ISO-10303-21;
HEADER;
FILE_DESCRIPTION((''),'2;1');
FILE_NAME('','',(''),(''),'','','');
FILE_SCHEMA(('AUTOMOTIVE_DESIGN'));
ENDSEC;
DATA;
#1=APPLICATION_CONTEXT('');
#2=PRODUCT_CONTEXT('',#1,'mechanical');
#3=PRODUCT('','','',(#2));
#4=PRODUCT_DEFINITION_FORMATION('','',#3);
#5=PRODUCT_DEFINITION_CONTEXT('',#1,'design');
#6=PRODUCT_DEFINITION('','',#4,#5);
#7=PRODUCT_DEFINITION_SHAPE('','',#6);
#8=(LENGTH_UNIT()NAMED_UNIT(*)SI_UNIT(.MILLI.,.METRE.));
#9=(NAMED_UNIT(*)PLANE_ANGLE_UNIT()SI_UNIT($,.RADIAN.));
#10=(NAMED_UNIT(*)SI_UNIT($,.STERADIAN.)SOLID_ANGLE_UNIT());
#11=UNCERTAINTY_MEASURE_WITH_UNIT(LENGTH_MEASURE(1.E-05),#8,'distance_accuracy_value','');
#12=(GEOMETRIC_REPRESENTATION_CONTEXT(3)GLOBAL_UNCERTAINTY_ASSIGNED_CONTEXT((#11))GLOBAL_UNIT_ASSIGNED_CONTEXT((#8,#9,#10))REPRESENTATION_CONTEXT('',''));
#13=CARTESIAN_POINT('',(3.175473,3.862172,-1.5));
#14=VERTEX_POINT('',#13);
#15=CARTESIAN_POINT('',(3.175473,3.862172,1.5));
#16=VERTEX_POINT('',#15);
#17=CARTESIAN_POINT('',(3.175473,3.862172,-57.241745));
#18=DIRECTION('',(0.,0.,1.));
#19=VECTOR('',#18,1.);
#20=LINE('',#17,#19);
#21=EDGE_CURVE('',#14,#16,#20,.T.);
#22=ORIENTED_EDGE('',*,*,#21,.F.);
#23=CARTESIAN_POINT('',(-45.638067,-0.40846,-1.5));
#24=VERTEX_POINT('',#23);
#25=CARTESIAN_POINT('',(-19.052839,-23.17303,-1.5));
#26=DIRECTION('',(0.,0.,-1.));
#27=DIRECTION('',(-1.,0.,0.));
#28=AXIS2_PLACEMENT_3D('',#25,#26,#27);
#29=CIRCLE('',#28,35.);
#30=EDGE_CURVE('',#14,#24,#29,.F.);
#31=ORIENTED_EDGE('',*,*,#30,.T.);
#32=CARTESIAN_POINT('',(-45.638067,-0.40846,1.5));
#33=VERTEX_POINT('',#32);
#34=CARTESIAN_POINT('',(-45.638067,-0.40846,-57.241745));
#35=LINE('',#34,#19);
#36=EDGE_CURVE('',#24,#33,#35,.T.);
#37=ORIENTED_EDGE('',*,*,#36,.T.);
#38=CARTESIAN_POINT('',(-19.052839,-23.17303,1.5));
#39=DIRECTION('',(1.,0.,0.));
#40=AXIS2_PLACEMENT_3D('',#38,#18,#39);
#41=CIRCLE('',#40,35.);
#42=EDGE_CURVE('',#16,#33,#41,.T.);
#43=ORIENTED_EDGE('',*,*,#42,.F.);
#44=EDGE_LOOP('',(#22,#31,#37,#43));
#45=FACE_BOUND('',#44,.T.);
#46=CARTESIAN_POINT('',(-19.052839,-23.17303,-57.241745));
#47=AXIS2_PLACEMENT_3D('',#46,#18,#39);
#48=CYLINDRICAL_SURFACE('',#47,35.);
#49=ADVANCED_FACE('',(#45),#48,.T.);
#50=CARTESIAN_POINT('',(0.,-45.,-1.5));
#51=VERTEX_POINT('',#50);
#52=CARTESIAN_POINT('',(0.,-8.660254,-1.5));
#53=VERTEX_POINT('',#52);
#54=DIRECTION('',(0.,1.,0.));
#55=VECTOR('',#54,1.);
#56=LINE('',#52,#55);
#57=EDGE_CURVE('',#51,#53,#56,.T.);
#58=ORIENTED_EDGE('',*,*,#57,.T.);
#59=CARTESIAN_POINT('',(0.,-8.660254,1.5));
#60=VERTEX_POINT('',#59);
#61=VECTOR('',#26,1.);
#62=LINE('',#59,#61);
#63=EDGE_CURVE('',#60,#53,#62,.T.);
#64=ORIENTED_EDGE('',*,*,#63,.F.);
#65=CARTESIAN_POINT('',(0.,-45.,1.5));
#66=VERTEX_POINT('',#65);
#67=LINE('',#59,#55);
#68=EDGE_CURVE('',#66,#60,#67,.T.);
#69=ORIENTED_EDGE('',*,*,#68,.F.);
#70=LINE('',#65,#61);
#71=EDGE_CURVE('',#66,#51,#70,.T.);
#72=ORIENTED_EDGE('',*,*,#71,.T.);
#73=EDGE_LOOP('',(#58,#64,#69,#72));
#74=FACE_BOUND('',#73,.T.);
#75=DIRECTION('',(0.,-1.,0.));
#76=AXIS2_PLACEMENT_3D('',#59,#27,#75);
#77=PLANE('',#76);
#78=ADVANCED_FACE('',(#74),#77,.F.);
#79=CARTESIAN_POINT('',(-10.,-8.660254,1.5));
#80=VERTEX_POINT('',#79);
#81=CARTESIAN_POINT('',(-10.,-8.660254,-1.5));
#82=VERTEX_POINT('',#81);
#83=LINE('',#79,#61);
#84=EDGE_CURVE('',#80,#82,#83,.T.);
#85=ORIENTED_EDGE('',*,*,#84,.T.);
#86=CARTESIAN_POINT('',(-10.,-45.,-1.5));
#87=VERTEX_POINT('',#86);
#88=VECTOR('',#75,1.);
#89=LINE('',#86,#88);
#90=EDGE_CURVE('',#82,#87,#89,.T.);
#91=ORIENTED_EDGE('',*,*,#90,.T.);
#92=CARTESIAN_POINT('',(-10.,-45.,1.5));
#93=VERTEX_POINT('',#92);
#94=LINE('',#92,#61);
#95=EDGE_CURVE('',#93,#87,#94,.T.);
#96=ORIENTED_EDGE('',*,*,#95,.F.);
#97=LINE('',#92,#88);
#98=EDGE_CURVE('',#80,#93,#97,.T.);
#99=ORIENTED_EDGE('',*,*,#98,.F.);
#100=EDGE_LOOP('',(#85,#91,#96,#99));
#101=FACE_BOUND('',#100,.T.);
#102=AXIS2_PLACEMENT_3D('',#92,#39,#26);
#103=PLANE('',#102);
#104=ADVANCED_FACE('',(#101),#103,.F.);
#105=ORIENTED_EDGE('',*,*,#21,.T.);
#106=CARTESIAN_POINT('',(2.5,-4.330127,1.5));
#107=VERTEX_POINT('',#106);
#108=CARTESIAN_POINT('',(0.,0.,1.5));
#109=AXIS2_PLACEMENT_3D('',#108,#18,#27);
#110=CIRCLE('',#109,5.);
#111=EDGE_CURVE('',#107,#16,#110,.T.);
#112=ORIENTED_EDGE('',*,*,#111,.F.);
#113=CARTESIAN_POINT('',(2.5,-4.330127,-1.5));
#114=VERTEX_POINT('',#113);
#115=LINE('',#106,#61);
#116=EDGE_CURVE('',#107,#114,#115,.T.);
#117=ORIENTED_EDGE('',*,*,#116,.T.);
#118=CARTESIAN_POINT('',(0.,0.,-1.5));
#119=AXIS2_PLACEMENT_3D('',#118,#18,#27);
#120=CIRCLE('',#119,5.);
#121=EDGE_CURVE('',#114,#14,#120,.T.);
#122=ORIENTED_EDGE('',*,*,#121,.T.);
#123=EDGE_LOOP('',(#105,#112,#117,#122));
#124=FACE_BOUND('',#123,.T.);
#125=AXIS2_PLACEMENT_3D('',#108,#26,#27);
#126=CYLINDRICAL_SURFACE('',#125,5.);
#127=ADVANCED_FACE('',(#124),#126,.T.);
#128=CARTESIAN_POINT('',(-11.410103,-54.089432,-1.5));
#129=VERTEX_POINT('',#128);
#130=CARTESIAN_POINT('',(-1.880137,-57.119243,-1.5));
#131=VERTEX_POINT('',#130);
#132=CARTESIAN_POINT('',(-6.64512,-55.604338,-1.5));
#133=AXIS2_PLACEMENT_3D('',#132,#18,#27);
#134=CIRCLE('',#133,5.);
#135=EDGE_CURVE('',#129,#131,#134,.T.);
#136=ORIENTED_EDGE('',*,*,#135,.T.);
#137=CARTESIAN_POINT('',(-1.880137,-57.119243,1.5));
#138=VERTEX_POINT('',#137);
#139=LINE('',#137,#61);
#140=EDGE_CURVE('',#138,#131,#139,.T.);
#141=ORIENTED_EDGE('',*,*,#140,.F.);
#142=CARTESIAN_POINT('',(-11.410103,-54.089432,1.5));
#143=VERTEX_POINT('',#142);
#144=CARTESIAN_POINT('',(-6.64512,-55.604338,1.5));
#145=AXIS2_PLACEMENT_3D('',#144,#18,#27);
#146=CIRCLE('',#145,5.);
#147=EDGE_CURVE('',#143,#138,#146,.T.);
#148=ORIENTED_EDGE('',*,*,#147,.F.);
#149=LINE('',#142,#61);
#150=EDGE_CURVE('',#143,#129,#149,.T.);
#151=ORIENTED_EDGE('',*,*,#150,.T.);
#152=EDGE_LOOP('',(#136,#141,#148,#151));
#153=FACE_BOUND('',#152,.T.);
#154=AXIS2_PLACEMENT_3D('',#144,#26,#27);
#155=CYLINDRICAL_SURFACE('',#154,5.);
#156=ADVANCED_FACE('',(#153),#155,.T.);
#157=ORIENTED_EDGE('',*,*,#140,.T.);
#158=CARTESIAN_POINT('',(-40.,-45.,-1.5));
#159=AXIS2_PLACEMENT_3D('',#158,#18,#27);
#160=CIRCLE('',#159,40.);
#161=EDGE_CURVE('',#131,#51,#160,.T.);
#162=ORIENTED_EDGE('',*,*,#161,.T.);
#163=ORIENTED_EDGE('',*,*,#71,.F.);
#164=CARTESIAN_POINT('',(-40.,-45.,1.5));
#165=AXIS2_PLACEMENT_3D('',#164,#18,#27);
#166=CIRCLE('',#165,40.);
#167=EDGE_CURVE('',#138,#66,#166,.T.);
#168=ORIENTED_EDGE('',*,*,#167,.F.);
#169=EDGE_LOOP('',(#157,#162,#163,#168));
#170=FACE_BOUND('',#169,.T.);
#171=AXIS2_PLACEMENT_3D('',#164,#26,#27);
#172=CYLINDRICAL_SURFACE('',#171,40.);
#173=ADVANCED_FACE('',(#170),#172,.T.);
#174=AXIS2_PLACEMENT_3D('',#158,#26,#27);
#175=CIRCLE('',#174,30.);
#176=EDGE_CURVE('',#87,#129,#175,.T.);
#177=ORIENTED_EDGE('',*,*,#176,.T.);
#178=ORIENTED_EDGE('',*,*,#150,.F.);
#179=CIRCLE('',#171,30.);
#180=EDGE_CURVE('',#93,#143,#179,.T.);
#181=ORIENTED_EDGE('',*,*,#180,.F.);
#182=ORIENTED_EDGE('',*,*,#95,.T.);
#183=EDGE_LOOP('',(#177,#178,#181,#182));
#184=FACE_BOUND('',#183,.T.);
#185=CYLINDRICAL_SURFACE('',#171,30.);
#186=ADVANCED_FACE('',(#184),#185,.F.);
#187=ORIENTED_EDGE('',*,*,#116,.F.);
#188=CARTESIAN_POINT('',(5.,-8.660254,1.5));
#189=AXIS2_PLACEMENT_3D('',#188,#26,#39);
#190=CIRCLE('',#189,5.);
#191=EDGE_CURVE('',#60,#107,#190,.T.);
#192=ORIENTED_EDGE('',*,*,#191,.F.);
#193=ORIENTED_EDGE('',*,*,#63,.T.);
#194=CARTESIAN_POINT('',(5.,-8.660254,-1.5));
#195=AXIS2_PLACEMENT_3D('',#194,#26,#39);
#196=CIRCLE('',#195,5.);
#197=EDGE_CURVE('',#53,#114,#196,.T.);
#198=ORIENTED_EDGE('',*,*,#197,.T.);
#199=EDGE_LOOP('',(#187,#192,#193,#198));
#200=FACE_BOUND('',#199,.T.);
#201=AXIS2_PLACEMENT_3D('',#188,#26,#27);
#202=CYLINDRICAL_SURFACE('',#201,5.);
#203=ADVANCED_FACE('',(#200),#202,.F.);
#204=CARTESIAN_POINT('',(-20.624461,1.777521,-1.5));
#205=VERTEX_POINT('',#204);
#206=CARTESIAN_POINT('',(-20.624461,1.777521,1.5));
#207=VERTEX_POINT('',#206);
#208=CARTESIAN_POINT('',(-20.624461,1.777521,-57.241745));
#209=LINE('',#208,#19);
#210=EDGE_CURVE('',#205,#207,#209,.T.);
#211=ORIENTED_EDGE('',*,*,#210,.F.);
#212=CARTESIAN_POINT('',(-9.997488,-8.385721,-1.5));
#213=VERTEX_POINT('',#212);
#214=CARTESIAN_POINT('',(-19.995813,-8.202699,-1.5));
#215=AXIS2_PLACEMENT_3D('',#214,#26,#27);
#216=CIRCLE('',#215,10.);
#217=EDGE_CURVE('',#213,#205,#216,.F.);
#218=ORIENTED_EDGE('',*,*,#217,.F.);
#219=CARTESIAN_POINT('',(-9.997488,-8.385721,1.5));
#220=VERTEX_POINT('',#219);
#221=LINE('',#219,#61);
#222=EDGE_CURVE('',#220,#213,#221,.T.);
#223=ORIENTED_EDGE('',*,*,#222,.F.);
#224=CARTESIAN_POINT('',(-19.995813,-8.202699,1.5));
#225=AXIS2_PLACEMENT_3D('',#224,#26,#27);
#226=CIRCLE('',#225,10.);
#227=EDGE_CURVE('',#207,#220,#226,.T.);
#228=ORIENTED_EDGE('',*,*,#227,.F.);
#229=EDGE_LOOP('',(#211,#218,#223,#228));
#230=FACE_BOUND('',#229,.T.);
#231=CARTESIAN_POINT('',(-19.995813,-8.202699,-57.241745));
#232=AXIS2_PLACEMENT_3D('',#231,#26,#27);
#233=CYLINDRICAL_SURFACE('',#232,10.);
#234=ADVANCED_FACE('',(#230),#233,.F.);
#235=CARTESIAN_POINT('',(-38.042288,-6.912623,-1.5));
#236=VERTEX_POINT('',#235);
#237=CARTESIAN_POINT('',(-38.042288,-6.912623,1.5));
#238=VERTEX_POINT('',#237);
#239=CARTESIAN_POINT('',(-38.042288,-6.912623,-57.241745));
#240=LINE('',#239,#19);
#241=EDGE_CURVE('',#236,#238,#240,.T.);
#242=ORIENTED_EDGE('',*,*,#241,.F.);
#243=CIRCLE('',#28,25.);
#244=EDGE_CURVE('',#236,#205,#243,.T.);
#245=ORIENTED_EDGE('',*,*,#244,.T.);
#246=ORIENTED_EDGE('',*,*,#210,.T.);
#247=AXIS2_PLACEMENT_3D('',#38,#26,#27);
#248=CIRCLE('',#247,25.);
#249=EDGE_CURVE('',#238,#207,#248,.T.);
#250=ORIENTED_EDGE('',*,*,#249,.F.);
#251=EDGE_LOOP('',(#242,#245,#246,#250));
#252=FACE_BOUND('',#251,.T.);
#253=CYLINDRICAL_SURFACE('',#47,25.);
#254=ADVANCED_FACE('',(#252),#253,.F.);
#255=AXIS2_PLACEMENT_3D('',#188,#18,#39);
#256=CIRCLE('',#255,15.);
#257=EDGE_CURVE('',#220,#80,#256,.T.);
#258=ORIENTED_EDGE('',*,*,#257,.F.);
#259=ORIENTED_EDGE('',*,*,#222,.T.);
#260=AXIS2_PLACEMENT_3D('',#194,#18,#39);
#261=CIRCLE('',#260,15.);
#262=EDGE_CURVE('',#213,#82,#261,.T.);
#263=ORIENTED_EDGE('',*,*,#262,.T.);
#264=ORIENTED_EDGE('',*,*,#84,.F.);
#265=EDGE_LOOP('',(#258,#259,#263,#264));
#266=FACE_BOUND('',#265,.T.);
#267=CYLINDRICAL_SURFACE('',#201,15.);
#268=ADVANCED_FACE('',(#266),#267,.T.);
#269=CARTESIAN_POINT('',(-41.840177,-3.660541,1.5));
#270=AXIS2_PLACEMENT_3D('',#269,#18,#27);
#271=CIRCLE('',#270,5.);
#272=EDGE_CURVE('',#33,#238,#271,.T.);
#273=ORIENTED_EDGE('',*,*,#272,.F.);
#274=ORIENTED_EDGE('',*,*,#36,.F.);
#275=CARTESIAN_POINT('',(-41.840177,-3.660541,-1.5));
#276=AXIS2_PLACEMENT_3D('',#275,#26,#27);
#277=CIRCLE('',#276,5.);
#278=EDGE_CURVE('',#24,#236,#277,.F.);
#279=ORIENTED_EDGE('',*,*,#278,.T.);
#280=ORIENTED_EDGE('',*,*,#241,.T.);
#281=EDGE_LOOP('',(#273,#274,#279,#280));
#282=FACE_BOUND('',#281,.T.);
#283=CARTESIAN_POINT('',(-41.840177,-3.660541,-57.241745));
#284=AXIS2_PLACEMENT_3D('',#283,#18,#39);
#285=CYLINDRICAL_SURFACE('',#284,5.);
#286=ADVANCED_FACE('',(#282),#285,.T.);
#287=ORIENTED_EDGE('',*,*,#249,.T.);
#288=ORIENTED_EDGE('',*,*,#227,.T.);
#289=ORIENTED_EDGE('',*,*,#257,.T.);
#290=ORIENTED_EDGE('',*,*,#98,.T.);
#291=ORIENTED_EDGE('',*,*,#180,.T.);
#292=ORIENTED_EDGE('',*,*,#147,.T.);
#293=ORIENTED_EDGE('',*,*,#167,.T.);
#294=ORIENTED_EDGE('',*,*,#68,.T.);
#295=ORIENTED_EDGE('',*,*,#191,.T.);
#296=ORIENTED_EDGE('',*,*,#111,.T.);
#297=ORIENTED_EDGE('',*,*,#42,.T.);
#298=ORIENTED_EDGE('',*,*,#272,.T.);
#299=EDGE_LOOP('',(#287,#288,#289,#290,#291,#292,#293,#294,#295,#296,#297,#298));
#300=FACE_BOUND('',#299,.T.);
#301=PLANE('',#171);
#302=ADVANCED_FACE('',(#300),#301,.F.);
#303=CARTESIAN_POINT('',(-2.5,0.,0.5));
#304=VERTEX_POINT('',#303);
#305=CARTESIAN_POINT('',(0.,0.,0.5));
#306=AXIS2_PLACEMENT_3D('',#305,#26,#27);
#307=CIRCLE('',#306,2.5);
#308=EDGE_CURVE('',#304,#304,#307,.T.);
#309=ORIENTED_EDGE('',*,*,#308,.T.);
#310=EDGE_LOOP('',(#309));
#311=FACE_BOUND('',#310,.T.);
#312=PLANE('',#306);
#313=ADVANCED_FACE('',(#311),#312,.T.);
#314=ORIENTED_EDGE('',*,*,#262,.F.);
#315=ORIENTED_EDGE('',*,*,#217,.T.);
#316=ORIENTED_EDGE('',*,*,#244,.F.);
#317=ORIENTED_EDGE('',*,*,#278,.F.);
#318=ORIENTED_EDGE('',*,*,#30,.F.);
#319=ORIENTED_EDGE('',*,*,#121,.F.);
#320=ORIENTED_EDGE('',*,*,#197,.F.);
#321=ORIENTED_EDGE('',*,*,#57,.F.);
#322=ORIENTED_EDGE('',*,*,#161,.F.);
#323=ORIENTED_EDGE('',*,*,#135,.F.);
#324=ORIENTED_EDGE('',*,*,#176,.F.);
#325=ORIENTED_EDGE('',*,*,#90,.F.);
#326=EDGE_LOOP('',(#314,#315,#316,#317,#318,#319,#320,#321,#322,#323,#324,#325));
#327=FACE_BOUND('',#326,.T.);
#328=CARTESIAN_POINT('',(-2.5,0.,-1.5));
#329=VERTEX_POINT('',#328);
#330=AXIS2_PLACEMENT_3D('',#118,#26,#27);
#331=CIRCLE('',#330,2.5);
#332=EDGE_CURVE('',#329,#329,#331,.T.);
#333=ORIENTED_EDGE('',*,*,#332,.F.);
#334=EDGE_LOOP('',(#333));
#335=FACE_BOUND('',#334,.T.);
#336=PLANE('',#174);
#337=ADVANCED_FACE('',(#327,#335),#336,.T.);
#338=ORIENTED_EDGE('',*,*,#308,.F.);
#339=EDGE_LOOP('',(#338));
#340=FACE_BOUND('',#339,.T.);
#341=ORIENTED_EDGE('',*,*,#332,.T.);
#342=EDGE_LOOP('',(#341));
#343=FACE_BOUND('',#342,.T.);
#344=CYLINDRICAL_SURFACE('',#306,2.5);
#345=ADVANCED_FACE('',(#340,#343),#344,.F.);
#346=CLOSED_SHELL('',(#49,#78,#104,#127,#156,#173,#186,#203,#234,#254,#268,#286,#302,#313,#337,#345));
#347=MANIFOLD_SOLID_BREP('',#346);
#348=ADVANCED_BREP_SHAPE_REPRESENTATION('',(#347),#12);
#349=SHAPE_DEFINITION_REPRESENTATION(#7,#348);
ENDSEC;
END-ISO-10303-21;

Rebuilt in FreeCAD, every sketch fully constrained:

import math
import FreeCAD as App
import Part
import Sketcher


def edges_at(feature, points):
    """Names of the edges that pass closest to the given points."""
    edges = feature.Shape.Edges
    near = lambda p: min(range(len(edges)), key=lambda i: edges[i].distToShape(Part.Vertex(*p))[0])
    return sorted({f"Edge{near(p) + 1}" for p in points})

doc = App.newDocument("Part")
params = doc.addObject("Spreadsheet::Sheet", "Params")
for row, (alias, value) in enumerate([
    ("sketch1_radius", "30 mm"),
    ("sketch1_radius2", "5 mm"),
    ("pad1_length", "3 mm"),
    ("sketch2_radius", "5 mm"),
    ("sketch2_radius2", "25 mm"),
    ("pad2_length", "3 mm"),
    ("sketch3_diameter", "5 mm"),
    ("pocket1_length", "2 mm"),
    ("fillet_radius", "10 mm"),
], start=1):
    params.set(f"A{row}", alias)
    params.set(f"B{row}", "=" + value)
    params.setAlias(f"B{row}", alias)

body = doc.addObject("PartDesign::Body", "Body")

# Sketch on XY plane
sketch1 = doc.addObject("Sketcher::SketchObject", "Sketch")
body.addObject(sketch1)
sketch1.AttachmentSupport = (doc.XY_Plane, [""])
sketch1.MapMode = "FlatFace"
sketch1.addGeometry([
    Part.LineSegment(App.Vector(-10, -9, 0), App.Vector(-10, -45, 0)),  # 0
    Part.ArcOfCircle(Part.Circle(App.Vector(-40, -45, 0), App.Vector(0, 0, 1), 30), math.radians(-17.64), math.radians(0)),  # 1
    Part.ArcOfCircle(Part.Circle(App.Vector(-7, -56, 0), App.Vector(0, 0, 1), 5), math.radians(162), math.radians(342)),  # 2
    Part.ArcOfCircle(Part.Circle(App.Vector(-40, -45, 0), App.Vector(0, 0, 1), 40), math.radians(-17.64), math.radians(0)),  # 3
    Part.LineSegment(App.Vector(0, -45, 0), App.Vector(0, -9, 0)),  # 4
    Part.ArcOfCircle(Part.Circle(App.Vector(5, -9, 0), App.Vector(0, 0, 1), 5), math.radians(120), math.radians(180)),  # 5
    Part.ArcOfCircle(Part.Circle(App.Vector(0, 0, 0), App.Vector(0, 0, 1), 5), math.radians(-60), math.radians(120)),  # 6
    Part.ArcOfCircle(Part.Circle(App.Vector(5, -9, 0), App.Vector(0, 0, 1), 15), math.radians(120), math.radians(180)),  # 7
], False)
sketch1.addConstraint([
    Sketcher.Constraint("Tangent", 0, 2, 1, 2),
    Sketcher.Constraint("Tangent", 1, 1, 2, 1),
    Sketcher.Constraint("Tangent", 2, 2, 3, 1),
    Sketcher.Constraint("Tangent", 3, 2, 4, 1),
    Sketcher.Constraint("Tangent", 4, 2, 5, 2),
    Sketcher.Constraint("Tangent", 5, 1, 6, 1),
    Sketcher.Constraint("Tangent", 6, 2, 7, 1),
    Sketcher.Constraint("Tangent", 7, 2, 0, 1),
    Sketcher.Constraint("Vertical", 0),
    Sketcher.Constraint("Vertical", 4),
    Sketcher.Constraint("Coincident", 6, 3, -1, 1),
    Sketcher.Constraint("Coincident", 3, 3, 1, 3),
    Sketcher.Constraint("Coincident", 7, 3, 5, 3),
    Sketcher.Constraint("Equal", 2, 5),
    Sketcher.Constraint("PointOnObject", 3, 2, -2),
    Sketcher.Constraint("Radius", 1, 30.0),
    Sketcher.Constraint("Radius", 2, 5.0),
    Sketcher.Constraint("DistanceY", 1, 3, -1, 1, 45.0),
    Sketcher.Constraint("DistanceX", 2, 3, -1, 1, 6.64512),
])
sketch1.setExpression("Constraints[15]", "Params.sketch1_radius")
sketch1.setExpression("Constraints[16]", "Params.sketch1_radius2")
pad1 = doc.addObject("PartDesign::Pad", "Pad")
body.addObject(pad1)
pad1.Profile = sketch1
pad1.setExpression("Length", "Params.pad1_length")
pad1.Midplane = True

# Sketch on XY plane
sketch2 = doc.addObject("Sketcher::SketchObject", "Sketch001")
body.addObject(sketch2)
sketch2.AttachmentSupport = (doc.XY_Plane, [""])
sketch2.MapMode = "FlatFace"
sketch2.AttachmentOffset = App.Placement(App.Vector(0, 0, 1.5), App.Rotation())
sketch2.addGeometry([
    Part.ArcOfCircle(Part.Circle(App.Vector(-42, -4, 0), App.Vector(0, 0, 1), 5), math.radians(139), math.radians(319)),
    Part.ArcOfCircle(Part.Circle(App.Vector(-19, -23, 0), App.Vector(0, 0, 1), 25), math.radians(51), math.radians(139)),
    Part.ArcOfCircle(Part.Circle(App.Vector(0, 0, 0), App.Vector(0, 0, 1), 5), math.radians(-129), math.radians(51)),
    Part.ArcOfCircle(Part.Circle(App.Vector(-19, -23, 0), App.Vector(0, 0, 1), 35), math.radians(51), math.radians(139)),
], False)
sketch2.addConstraint([
    Sketcher.Constraint("Tangent", 0, 2, 1, 2),
    Sketcher.Constraint("Tangent", 1, 1, 2, 1),
    Sketcher.Constraint("Tangent", 2, 2, 3, 1),
    Sketcher.Constraint("Tangent", 3, 2, 0, 1),
    Sketcher.Constraint("Coincident", 2, 3, -1, 1),
    Sketcher.Constraint("Coincident", 3, 3, 1, 3),
    Sketcher.Constraint("Radius", 0, 5.0),
    Sketcher.Constraint("Radius", 1, 25.0),
    Sketcher.Constraint("DistanceY", 1, 3, 2, 2, 27.035202),
    Sketcher.Constraint("DistanceY", 0, 3, -1, 1, 3.660541),
])
sketch2.setExpression("Constraints[6]", "Params.sketch2_radius")
sketch2.setExpression("Constraints[7]", "Params.sketch2_radius2")
pad2 = doc.addObject("PartDesign::Pad", "Pad001")
body.addObject(pad2)
pad2.Profile = sketch2
pad2.setExpression("Length", "Params.pad2_length")
pad2.Reversed = True

# Sketch on XY plane
sketch3 = doc.addObject("Sketcher::SketchObject", "Sketch002")
body.addObject(sketch3)
sketch3.AttachmentSupport = (doc.XY_Plane, [""])
sketch3.MapMode = "FlatFace"
sketch3.AttachmentOffset = App.Placement(App.Vector(0, 0, -1.5), App.Rotation())
sketch3.addGeometry(Part.Circle(App.Vector(0, 0, 0), App.Vector(0, 0, 1), 2.5), False)
sketch3.addConstraint([
    Sketcher.Constraint("Coincident", 0, 3, -1, 1),
    Sketcher.Constraint("Diameter", 0, 5.0),
])
sketch3.setExpression("Constraints[1]", "Params.sketch3_diameter")
pocket1 = doc.addObject("PartDesign::Pocket", "Pocket")
body.addObject(pocket1)
pocket1.Profile = sketch3
pocket1.setExpression("Length", "Params.pocket1_length")
pocket1.Reversed = True
doc.recompute()

fillet = doc.addObject("PartDesign::Fillet", "Fillet")
body.addObject(fillet)
fillet.Base = (pocket1, edges_at(pocket1, [(-7.804, -0.847, 0)]))
fillet.setExpression("Radius", "Params.fillet_radius")

doc.recompute()
